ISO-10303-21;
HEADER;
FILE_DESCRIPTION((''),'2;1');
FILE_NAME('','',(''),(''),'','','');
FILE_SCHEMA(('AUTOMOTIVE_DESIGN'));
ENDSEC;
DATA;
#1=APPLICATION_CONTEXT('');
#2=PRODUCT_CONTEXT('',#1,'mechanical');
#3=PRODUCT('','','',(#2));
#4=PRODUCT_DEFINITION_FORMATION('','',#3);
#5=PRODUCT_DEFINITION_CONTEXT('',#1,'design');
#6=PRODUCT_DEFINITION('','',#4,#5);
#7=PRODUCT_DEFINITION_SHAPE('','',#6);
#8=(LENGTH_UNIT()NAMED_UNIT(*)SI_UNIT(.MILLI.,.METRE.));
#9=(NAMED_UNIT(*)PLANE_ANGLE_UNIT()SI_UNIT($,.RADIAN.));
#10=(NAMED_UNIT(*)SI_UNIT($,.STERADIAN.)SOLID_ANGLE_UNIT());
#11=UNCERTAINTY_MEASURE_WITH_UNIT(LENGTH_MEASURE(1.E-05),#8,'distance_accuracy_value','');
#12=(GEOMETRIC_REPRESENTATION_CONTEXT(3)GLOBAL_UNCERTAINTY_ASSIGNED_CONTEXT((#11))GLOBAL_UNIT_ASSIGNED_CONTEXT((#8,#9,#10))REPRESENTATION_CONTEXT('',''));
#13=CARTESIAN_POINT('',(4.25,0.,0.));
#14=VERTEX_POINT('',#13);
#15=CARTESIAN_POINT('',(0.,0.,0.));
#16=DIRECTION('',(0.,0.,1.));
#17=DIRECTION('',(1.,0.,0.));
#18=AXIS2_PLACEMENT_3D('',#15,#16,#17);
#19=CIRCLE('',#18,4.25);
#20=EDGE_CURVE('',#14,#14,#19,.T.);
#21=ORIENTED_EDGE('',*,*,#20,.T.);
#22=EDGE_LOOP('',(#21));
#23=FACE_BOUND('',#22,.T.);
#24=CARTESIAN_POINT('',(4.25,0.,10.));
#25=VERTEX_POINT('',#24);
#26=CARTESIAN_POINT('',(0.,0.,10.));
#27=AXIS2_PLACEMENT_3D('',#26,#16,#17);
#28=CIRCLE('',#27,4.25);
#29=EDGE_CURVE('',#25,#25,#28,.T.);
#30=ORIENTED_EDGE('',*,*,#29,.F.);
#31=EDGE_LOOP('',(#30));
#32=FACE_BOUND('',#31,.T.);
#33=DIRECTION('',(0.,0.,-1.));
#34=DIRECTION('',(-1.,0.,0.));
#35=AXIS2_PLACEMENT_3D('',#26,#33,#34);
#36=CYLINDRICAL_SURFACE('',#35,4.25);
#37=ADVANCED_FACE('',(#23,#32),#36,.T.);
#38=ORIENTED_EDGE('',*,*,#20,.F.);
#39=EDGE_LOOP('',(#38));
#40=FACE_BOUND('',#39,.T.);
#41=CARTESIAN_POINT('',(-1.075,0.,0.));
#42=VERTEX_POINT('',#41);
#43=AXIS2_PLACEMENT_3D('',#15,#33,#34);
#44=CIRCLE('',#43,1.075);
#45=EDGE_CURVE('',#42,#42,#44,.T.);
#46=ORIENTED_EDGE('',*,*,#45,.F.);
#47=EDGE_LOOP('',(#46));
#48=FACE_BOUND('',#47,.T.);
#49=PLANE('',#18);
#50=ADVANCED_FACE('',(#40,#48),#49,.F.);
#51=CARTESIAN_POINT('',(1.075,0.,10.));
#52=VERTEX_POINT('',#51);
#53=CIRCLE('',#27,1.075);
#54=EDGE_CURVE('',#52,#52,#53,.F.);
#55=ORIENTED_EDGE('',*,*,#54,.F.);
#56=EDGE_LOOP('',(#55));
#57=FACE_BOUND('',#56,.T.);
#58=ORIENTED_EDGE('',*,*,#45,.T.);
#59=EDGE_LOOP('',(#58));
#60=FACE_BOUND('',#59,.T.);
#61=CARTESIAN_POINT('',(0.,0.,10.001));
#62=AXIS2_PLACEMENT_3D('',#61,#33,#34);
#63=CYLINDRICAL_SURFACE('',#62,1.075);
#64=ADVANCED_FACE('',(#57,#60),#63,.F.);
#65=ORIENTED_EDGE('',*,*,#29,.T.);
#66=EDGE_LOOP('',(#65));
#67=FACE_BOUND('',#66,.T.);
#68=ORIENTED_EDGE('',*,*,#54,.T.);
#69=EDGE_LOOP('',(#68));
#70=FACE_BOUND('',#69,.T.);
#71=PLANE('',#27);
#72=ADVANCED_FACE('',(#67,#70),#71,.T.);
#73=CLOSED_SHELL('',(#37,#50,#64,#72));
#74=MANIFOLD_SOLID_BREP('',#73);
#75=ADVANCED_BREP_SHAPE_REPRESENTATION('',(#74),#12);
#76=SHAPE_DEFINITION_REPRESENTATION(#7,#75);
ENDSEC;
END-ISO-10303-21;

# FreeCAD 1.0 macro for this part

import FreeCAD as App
import Part
import Sketcher

V = App.Vector

doc = App.newDocument("Part")
body = doc.addObject("PartDesign::Body", "Body")

# Sketch on XY plane
sketch1 = doc.addObject("Sketcher::SketchObject", "Sketch")
body.addObject(sketch1)
sketch1.AttachmentSupport = (doc.XY_Plane, [""])
sketch1.MapMode = "FlatFace"
sketch1.addGeometry(Part.Circle(V(0, 0, 0), V(0, 0, 1), 4.2), False)
sketch1.addConstraint([
    Sketcher.Constraint("Coincident", 0, 3, -1, 1),
    Sketcher.Constraint("Diameter", 0, 8.5),
])
pad1 = doc.addObject("PartDesign::Pad", "Pad")
body.addObject(pad1)
pad1.Profile = sketch1
pad1.Length = 10

# Sketch on XY plane
sketch2 = doc.addObject("Sketcher::SketchObject", "Sketch001")
body.addObject(sketch2)
sketch2.AttachmentSupport = (doc.XY_Plane, [""])
sketch2.MapMode = "FlatFace"
sketch2.addGeometry(Part.Circle(V(0, 0, 0), V(0, 0, 1), 1.1), False)
sketch2.addConstraint([
    Sketcher.Constraint("Coincident", 0, 3, -1, 1),
    Sketcher.Constraint("Diameter", 0, 2.15),
])
pocket1 = doc.addObject("PartDesign::Pocket", "Pocket")
body.addObject(pocket1)
pocket1.Profile = sketch2
pocket1.Type = "UpToFirst"
pocket1.Reversed = True

doc.recompute()
